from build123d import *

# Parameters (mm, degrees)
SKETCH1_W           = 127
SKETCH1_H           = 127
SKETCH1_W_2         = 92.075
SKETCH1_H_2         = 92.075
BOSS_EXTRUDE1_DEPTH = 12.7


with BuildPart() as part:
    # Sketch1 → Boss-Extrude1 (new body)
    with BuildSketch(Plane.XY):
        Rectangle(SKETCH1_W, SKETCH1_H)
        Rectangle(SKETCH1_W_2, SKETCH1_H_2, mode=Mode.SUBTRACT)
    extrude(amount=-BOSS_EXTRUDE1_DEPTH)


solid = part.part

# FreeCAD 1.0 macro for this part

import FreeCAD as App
import Part
import Sketcher

V = App.Vector
Q = App.Units.Quantity


def add_polygon(sketch, points):
    """Adds a closed chain of lines whose ends are joined by coincident constraints."""
    first, n = sketch.GeometryCount, len(points)
    for a, b in zip(points, points[1:] + points[:1]):
        sketch.addGeometry(Part.LineSegment(App.Vector(*a, 0), App.Vector(*b, 0)), False)
    for i in range(n):
        sketch.addConstraint(Sketcher.Constraint("Coincident", first + i, 2, first + (i + 1) % n, 1))

doc = App.newDocument("Part")
body = doc.addObject("PartDesign::Body", "Body")

sketch1 = body.newObject("Sketcher::SketchObject", "Sketch")
sketch1.AttachmentSupport = (doc.getObject("XY_Plane"), [""])
sketch1.MapMode = "FlatFace"
add_polygon(sketch1, [(-64, 64), (-64, -64), (64, -64), (64, 64)])
add_polygon(sketch1, [(46, -46), (-46, -46), (-46, 46), (46, 46)])
sketch1.addConstraint([
    Sketcher.Constraint("Vertical", 0),
    Sketcher.Constraint("Horizontal", 1),
    Sketcher.Constraint("Vertical", 2),
    Sketcher.Constraint("Horizontal", 3),
    Sketcher.Constraint("Horizontal", 4),
    Sketcher.Constraint("Vertical", 5),
    Sketcher.Constraint("Horizontal", 6),
    Sketcher.Constraint("Vertical", 7),
    Sketcher.Constraint("Symmetric", 0, 2, 2, 2, -1, 1),
    Sketcher.Constraint("Symmetric", 4, 2, 6, 2, -1, 1),
    Sketcher.Constraint("Equal", 3, 0),
    Sketcher.Constraint("Equal", 6, 5),
    Sketcher.Constraint("DistanceX", 1, 1, 1, 2, Q("5 in")),
    Sketcher.Constraint("DistanceX", 4, 2, 4, 1, Q("3.625 in")),
])
pad1 = body.newObject("PartDesign::Pad", "Pad")
pad1.Profile = sketch1
pad1.Length = Q("0.5 in")
pad1.Reversed = True

doc.recompute()
